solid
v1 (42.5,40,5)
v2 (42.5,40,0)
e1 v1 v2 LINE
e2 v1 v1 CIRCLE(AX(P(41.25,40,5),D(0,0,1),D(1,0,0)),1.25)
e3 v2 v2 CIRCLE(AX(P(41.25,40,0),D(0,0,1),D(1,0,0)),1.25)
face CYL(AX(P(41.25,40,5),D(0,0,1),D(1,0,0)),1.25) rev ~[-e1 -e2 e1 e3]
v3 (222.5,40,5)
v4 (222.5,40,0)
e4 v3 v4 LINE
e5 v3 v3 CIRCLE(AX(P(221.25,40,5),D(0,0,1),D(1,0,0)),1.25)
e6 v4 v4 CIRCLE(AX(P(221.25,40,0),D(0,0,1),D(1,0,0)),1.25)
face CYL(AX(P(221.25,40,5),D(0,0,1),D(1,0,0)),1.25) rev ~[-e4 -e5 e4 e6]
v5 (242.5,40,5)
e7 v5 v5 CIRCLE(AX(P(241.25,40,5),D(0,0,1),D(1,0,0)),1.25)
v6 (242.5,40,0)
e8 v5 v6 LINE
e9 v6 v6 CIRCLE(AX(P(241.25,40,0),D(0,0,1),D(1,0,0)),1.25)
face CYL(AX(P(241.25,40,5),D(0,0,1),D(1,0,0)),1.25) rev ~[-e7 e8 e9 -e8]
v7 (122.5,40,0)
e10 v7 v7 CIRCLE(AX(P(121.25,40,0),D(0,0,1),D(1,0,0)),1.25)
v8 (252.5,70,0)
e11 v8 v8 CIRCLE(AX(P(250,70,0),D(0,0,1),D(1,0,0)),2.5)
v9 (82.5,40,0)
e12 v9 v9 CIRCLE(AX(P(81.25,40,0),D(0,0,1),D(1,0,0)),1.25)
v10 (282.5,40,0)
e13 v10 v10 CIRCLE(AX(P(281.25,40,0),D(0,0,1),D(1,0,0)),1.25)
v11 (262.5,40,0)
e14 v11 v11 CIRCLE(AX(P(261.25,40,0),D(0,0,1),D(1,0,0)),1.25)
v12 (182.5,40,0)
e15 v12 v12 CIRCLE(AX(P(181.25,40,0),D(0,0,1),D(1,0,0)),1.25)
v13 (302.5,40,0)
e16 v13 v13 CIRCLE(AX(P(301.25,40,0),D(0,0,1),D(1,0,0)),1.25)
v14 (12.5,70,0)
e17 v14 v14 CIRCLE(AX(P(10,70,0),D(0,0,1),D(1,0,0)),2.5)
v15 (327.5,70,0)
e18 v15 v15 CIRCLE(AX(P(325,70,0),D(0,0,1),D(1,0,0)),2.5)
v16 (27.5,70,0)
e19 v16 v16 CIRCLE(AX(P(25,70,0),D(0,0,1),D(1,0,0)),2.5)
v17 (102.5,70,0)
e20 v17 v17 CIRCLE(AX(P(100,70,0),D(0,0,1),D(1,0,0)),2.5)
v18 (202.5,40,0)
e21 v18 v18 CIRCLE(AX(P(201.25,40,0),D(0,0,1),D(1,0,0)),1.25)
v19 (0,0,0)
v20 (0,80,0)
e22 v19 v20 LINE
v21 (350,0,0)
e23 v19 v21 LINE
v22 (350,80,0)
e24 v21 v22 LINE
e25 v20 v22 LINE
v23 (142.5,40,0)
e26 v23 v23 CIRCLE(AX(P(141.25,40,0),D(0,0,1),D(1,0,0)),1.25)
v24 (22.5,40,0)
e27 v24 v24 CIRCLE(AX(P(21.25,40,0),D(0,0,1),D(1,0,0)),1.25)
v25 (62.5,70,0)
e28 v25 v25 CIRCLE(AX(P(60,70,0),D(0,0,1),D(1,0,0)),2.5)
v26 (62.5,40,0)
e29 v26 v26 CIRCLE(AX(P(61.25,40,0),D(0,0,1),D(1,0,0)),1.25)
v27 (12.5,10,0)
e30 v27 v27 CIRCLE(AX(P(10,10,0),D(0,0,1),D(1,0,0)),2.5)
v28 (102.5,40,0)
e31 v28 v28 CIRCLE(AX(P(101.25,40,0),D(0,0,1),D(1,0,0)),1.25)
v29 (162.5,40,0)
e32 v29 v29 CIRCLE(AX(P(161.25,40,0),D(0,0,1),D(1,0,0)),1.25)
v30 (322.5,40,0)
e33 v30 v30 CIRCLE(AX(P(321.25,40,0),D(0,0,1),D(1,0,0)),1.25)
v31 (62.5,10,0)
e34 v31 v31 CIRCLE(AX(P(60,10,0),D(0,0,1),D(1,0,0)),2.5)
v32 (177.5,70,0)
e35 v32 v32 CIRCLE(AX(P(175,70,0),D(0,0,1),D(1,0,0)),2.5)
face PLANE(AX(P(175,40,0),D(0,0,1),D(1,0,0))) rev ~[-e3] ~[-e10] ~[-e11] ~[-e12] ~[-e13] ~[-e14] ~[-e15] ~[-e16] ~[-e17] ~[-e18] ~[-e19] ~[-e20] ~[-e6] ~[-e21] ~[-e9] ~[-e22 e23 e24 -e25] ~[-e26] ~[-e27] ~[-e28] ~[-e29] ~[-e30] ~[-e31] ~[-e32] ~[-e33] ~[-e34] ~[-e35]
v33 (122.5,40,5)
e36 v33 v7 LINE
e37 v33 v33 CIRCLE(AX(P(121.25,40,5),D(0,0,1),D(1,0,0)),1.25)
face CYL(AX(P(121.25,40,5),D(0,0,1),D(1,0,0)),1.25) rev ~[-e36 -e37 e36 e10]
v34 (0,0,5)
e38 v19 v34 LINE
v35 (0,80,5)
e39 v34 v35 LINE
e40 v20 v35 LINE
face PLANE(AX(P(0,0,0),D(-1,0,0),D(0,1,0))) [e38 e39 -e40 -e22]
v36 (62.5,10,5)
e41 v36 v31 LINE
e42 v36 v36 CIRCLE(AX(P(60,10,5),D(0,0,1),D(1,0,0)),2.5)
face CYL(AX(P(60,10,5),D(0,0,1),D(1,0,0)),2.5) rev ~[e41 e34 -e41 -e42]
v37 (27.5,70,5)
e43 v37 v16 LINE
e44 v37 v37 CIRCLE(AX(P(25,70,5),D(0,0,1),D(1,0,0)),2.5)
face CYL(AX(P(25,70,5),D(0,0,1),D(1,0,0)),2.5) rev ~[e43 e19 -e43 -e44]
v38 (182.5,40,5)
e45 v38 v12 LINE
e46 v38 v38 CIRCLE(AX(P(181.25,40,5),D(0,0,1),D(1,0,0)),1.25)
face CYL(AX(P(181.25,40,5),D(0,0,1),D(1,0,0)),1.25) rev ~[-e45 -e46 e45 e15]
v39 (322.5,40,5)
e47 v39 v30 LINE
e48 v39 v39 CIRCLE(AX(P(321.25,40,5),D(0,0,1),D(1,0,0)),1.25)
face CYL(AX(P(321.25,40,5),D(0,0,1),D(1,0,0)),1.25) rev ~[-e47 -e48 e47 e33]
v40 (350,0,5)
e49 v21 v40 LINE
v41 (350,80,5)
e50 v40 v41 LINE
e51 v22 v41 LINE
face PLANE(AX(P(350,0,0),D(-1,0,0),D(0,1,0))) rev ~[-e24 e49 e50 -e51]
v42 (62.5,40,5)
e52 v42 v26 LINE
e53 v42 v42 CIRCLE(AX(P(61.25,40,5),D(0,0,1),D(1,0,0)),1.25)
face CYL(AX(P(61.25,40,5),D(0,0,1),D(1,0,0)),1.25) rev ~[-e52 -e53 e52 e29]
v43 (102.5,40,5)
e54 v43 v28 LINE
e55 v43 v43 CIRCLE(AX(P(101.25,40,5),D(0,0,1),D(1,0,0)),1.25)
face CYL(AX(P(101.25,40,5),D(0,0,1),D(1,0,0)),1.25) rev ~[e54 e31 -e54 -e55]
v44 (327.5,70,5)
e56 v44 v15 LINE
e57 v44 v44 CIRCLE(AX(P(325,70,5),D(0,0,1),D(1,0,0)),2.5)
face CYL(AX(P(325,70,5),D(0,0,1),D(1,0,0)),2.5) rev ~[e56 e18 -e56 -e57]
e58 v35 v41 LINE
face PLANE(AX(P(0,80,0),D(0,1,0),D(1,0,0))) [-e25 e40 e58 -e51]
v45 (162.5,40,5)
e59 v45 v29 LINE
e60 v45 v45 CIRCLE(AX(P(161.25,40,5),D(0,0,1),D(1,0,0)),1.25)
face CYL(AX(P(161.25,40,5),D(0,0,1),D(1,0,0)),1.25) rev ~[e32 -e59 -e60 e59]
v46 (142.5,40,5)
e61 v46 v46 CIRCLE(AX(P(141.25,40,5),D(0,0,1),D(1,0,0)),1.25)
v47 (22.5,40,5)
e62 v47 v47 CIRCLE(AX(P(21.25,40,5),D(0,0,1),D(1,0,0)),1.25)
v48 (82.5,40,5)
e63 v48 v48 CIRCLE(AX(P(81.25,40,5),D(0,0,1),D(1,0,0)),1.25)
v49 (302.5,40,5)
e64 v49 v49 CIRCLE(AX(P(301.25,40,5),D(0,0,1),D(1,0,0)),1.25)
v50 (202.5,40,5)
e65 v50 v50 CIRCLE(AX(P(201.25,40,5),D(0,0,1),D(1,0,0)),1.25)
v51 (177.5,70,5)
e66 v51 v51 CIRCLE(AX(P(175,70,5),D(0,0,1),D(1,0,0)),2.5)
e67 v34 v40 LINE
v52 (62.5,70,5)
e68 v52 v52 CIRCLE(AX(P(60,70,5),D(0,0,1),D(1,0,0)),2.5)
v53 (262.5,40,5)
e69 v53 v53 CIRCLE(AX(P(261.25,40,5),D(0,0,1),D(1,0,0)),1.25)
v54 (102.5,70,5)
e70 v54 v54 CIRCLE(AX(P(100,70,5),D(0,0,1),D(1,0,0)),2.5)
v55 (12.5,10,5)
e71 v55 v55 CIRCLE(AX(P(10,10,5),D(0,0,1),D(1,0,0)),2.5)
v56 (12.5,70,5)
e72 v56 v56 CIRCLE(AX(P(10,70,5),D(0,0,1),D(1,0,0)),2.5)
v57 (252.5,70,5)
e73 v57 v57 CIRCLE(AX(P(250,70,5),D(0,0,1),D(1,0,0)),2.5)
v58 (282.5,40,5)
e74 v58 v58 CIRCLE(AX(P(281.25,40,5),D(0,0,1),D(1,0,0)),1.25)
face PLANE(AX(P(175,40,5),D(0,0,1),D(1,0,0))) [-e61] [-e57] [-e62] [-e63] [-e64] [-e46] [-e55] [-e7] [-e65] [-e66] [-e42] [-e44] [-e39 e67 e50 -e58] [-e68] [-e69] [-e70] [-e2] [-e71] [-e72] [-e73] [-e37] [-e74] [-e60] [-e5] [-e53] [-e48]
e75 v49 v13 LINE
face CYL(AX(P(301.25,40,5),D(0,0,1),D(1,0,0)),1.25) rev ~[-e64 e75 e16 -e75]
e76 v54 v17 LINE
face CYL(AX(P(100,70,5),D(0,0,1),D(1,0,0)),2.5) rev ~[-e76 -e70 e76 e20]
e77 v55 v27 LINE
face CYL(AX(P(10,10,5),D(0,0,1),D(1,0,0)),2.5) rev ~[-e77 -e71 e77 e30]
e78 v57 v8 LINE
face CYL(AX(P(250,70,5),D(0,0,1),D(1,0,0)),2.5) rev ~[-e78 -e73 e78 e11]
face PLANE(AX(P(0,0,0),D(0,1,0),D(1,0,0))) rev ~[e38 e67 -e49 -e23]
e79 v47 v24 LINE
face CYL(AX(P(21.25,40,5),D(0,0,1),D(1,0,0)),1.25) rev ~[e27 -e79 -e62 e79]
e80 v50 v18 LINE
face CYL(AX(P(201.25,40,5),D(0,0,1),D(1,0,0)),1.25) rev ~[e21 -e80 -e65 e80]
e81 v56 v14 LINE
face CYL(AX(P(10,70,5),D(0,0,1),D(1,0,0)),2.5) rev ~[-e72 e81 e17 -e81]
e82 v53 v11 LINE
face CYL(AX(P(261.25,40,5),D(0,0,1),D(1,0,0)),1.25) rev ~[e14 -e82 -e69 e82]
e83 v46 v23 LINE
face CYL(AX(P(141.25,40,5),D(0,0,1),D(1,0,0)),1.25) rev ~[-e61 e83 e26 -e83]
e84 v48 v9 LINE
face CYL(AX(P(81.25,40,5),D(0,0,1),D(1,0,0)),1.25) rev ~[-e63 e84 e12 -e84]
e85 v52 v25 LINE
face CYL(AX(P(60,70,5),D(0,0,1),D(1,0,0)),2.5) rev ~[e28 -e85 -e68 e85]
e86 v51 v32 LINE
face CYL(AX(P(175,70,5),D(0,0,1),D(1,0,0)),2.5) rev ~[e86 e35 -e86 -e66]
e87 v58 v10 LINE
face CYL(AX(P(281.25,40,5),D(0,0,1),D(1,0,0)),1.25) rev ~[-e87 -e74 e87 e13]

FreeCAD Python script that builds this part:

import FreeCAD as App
import Part
import Sketcher
from FreeCAD import Vector


def add_polygon(sketch, points):
    """Adds a closed chain of lines whose ends are joined by coincident constraints."""
    first, n = sketch.GeometryCount, len(points)
    for a, b in zip(points, points[1:] + points[:1]):
        sketch.addGeometry(Part.LineSegment(App.Vector(*a, 0), App.Vector(*b, 0)), False)
    for i in range(n):
        sketch.addConstraint(Sketcher.Constraint("Coincident", first + i, 2, first + (i + 1) % n, 1))

doc = App.newDocument("Part")
body = doc.addObject("PartDesign::Body", "Body")

# Sketch on XY plane
sketch1 = body.newObject("Sketcher::SketchObject", "Sketch")
sketch1.AttachmentSupport = (doc.getObject("XY_Plane"), [""])
sketch1.MapMode = "FlatFace"
add_polygon(sketch1, [(0, 80), (0, 0), (350, 0), (350, 80)])  # lines 0-3
sketch1.addConstraint([
    Sketcher.Constraint("Vertical", 0),
    Sketcher.Constraint("Horizontal", 1),
    Sketcher.Constraint("Vertical", 2),
    Sketcher.Constraint("Horizontal", 3),
    Sketcher.Constraint("Coincident", 0, 2, -1, 1),
    Sketcher.Constraint("DistanceX", 1, 1, 1, 2, 350.0),
    Sketcher.Constraint("DistanceY", 0, 2, 0, 1, 80.0),
])
pad1 = body.newObject("PartDesign::Pad", "Pad")
pad1.Profile = sketch1
pad1.Length = 5

# Sketch on XY plane
sketch2 = body.newObject("Sketcher::SketchObject", "Sketch001")
sketch2.AttachmentSupport = (doc.getObject("XY_Plane"), [""])
sketch2.MapMode = "FlatFace"
sketch2.AttachmentOffset = App.Placement(Vector(0, 0, 5), App.Rotation())
sketch2.addGeometry([
    Part.Circle(Vector(21.2, 40, 0), Vector(0, 0, 1), 1.2),  # 0
    Part.Circle(Vector(41.2, 40, 0), Vector(0, 0, 1), 1.2),  # 1
    Part.Circle(Vector(61.2, 40, 0), Vector(0, 0, 1), 1.2),  # 2
    Part.Circle(Vector(81.2, 40, 0), Vector(0, 0, 1), 1.2),  # 3
    Part.Circle(Vector(101.2, 40, 0), Vector(0, 0, 1), 1.2),  # 4
    Part.Circle(Vector(121.2, 40, 0), Vector(0, 0, 1), 1.2),  # 5
    Part.Circle(Vector(141.2, 40, 0), Vector(0, 0, 1), 1.2),  # 6
    Part.Circle(Vector(161.2, 40, 0), Vector(0, 0, 1), 1.2),  # 7
    Part.Circle(Vector(181.2, 40, 0), Vector(0, 0, 1), 1.2),  # 8
    Part.Circle(Vector(201.2, 40, 0), Vector(0, 0, 1), 1.2),  # 9
    Part.Circle(Vector(221.2, 40, 0), Vector(0, 0, 1), 1.2),  # 10
    Part.Circle(Vector(241.2, 40, 0), Vector(0, 0, 1), 1.2),  # 11
    Part.Circle(Vector(261.2, 40, 0), Vector(0, 0, 1), 1.2),  # 12
    Part.Circle(Vector(281.2, 40, 0), Vector(0, 0, 1), 1.2),  # 13
    Part.Circle(Vector(301.2, 40, 0), Vector(0, 0, 1), 1.2),  # 14
    Part.Circle(Vector(321.2, 40, 0), Vector(0, 0, 1), 1.2),  # 15
], False)
sketch2.addConstraint([
    Sketcher.Constraint("Equal", 0, 1),
    Sketcher.Constraint("Equal", 1, 2),
    Sketcher.Constraint("Equal", 2, 3),
    Sketcher.Constraint("Equal", 3, 4),
    Sketcher.Constraint("Equal", 4, 5),
    Sketcher.Constraint("Equal", 5, 6),
    Sketcher.Constraint("Equal", 6, 7),
    Sketcher.Constraint("Equal", 7, 8),
    Sketcher.Constraint("Equal", 8, 9),
    Sketcher.Constraint("Equal", 9, 10),
    Sketcher.Constraint("Equal", 10, 11),
    Sketcher.Constraint("Equal", 11, 12),
    Sketcher.Constraint("Equal", 12, 13),
    Sketcher.Constraint("Equal", 13, 14),
    Sketcher.Constraint("Equal", 14, 15),
    Sketcher.Constraint("Horizontal", 0, 3, 1, 3),
    Sketcher.Constraint("Horizontal", 1, 3, 2, 3),
    Sketcher.Constraint("Horizontal", 2, 3, 3, 3),
    Sketcher.Constraint("Horizontal", 3, 3, 4, 3),
    Sketcher.Constraint("Horizontal", 4, 3, 5, 3),
    Sketcher.Constraint("Horizontal", 5, 3, 6, 3),
    Sketcher.Constraint("Horizontal", 6, 3, 7, 3),
    Sketcher.Constraint("Horizontal", 7, 3, 8, 3),
    Sketcher.Constraint("Horizontal", 8, 3, 9, 3),
    Sketcher.Constraint("Horizontal", 9, 3, 10, 3),
    Sketcher.Constraint("Horizontal", 10, 3, 11, 3),
    Sketcher.Constraint("Horizontal", 11, 3, 12, 3),
    Sketcher.Constraint("Horizontal", 12, 3, 13, 3),
    Sketcher.Constraint("Horizontal", 13, 3, 14, 3),
    Sketcher.Constraint("Horizontal", 14, 3, 15, 3),
    Sketcher.Constraint("Diameter", 0, 2.5),
    Sketcher.Constraint("DistanceY", -1, 1, 0, 3, 40.0),
    Sketcher.Constraint("DistanceX", 0, 3, 1, 3, 20.0),
    Sketcher.Constraint("DistanceX", 1, 3, 2, 3, 20.0),
    Sketcher.Constraint("DistanceX", 2, 3, 3, 3, 20.0),
    Sketcher.Constraint("DistanceX", 3, 3, 4, 3, 20.0),
    Sketcher.Constraint("DistanceX", 4, 3, 5, 3, 20.0),
    Sketcher.Constraint("DistanceX", 5, 3, 6, 3, 20.0),
    Sketcher.Constraint("DistanceX", 6, 3, 7, 3, 20.0),
    Sketcher.Constraint("DistanceX", 7, 3, 8, 3, 20.0),
    Sketcher.Constraint("DistanceX", 8, 3, 9, 3, 20.0),
    Sketcher.Constraint("DistanceX", 9, 3, 10, 3, 20.0),
    Sketcher.Constraint("DistanceX", 10, 3, 11, 3, 20.0),
    Sketcher.Constraint("DistanceX", 11, 3, 12, 3, 20.0),
    Sketcher.Constraint("DistanceX", 12, 3, 13, 3, 20.0),
    Sketcher.Constraint("DistanceX", 13, 3, 14, 3, 20.0),
    Sketcher.Constraint("DistanceX", 14, 3, 15, 3, 20.0),
    Sketcher.Constraint("DistanceX", -1, 1, 0, 3, 21.25),
])
pocket1 = body.newObject("PartDesign::Pocket", "Pocket")
pocket1.Profile = sketch2
pocket1.Type = "ThroughAll"

# Sketch on XY plane
sketch3 = body.newObject("Sketcher::SketchObject", "Sketch002")
sketch3.AttachmentSupport = (doc.getObject("XY_Plane"), [""])
sketch3.MapMode = "FlatFace"
sketch3.AttachmentOffset = App.Placement(Vector(0, 0, 5), App.Rotation())
sketch3.addGeometry([
    Part.Circle(Vector(25, 70, 0), Vector(0, 0, 1), 2.5),  # 0
    Part.Circle(Vector(100, 70, 0), Vector(0, 0, 1), 2.5),  # 1
    Part.Circle(Vector(175, 70, 0), Vector(0, 0, 1), 2.5),  # 2
    Part.Circle(Vector(250, 70, 0), Vector(0, 0, 1), 2.5),  # 3
    Part.Circle(Vector(325, 70, 0), Vector(0, 0, 1), 2.5),  # 4
], False)
sketch3.addConstraint([
    Sketcher.Constraint("Equal", 0, 1),
    Sketcher.Constraint("Equal", 1, 2),
    Sketcher.Constraint("Equal", 2, 3),
    Sketcher.Constraint("Equal", 3, 4),
    Sketcher.Constraint("Horizontal", 0, 3, 1, 3),
    Sketcher.Constraint("Horizontal", 1, 3, 2, 3),
    Sketcher.Constraint("Horizontal", 2, 3, 3, 3),
    Sketcher.Constraint("Horizontal", 3, 3, 4, 3),
    Sketcher.Constraint("Diameter", 0, 5.0),
    Sketcher.Constraint("DistanceX", -1, 1, 0, 3, 25.0),
    Sketcher.Constraint("DistanceY", -1, 1, 0, 3, 70.0),
    Sketcher.Constraint("DistanceX", -1, 1, 1, 3, 100.0),
    Sketcher.Constraint("DistanceX", -1, 1, 2, 3, 175.0),
    Sketcher.Constraint("DistanceX", -1, 1, 3, 3, 250.0),
    Sketcher.Constraint("DistanceX", -1, 1, 4, 3, 325.0),
])
pocket2 = body.newObject("PartDesign::Pocket", "Pocket001")
pocket2.Profile = sketch3
pocket2.Length = 25

# Sketch on XY plane
sketch4 = body.newObject("Sketcher::SketchObject", "Sketch003")
sketch4.AttachmentSupport = (doc.getObject("XY_Plane"), [""])
sketch4.MapMode = "FlatFace"
sketch4.AttachmentOffset = App.Placement(Vector(0, 0, 5), App.Rotation())
sketch4.addGeometry([
    Part.Circle(Vector(10, 70, 0), Vector(0, 0, 1), 2.5),
    Part.Circle(Vector(10, 10, 0), Vector(0, 0, 1), 2.5),
    Part.Circle(Vector(60, 70, 0), Vector(0, 0, 1), 2.5),
    Part.Circle(Vector(60, 10, 0), Vector(0, 0, 1), 2.5),
], False)
sketch4.addConstraint([
    Sketcher.Constraint("Equal", 0, 1),
    Sketcher.Constraint("Equal", 1, 2),
    Sketcher.Constraint("Equal", 2, 3),
    Sketcher.Constraint("Horizontal", 0, 3, 2, 3),
    Sketcher.Constraint("Horizontal", 1, 3, 3, 3),
    Sketcher.Constraint("Vertical", 0, 3, 1, 3),
    Sketcher.Constraint("Vertical", 2, 3, 3, 3),
    Sketcher.Constraint("Diameter", 0, 5.0),
    Sketcher.Constraint("DistanceX", -1, 1, 0, 3, 10.0),
    Sketcher.Constraint("DistanceY", -1, 1, 0, 3, 70.0),
    Sketcher.Constraint("DistanceY", -1, 1, 1, 3, 10.0),
    Sketcher.Constraint("DistanceX", -1, 1, 2, 3, 60.0),
])
pocket3 = body.newObject("PartDesign::Pocket", "Pocket002")
pocket3.Profile = sketch4
pocket3.Length = 25

doc.recompute()
